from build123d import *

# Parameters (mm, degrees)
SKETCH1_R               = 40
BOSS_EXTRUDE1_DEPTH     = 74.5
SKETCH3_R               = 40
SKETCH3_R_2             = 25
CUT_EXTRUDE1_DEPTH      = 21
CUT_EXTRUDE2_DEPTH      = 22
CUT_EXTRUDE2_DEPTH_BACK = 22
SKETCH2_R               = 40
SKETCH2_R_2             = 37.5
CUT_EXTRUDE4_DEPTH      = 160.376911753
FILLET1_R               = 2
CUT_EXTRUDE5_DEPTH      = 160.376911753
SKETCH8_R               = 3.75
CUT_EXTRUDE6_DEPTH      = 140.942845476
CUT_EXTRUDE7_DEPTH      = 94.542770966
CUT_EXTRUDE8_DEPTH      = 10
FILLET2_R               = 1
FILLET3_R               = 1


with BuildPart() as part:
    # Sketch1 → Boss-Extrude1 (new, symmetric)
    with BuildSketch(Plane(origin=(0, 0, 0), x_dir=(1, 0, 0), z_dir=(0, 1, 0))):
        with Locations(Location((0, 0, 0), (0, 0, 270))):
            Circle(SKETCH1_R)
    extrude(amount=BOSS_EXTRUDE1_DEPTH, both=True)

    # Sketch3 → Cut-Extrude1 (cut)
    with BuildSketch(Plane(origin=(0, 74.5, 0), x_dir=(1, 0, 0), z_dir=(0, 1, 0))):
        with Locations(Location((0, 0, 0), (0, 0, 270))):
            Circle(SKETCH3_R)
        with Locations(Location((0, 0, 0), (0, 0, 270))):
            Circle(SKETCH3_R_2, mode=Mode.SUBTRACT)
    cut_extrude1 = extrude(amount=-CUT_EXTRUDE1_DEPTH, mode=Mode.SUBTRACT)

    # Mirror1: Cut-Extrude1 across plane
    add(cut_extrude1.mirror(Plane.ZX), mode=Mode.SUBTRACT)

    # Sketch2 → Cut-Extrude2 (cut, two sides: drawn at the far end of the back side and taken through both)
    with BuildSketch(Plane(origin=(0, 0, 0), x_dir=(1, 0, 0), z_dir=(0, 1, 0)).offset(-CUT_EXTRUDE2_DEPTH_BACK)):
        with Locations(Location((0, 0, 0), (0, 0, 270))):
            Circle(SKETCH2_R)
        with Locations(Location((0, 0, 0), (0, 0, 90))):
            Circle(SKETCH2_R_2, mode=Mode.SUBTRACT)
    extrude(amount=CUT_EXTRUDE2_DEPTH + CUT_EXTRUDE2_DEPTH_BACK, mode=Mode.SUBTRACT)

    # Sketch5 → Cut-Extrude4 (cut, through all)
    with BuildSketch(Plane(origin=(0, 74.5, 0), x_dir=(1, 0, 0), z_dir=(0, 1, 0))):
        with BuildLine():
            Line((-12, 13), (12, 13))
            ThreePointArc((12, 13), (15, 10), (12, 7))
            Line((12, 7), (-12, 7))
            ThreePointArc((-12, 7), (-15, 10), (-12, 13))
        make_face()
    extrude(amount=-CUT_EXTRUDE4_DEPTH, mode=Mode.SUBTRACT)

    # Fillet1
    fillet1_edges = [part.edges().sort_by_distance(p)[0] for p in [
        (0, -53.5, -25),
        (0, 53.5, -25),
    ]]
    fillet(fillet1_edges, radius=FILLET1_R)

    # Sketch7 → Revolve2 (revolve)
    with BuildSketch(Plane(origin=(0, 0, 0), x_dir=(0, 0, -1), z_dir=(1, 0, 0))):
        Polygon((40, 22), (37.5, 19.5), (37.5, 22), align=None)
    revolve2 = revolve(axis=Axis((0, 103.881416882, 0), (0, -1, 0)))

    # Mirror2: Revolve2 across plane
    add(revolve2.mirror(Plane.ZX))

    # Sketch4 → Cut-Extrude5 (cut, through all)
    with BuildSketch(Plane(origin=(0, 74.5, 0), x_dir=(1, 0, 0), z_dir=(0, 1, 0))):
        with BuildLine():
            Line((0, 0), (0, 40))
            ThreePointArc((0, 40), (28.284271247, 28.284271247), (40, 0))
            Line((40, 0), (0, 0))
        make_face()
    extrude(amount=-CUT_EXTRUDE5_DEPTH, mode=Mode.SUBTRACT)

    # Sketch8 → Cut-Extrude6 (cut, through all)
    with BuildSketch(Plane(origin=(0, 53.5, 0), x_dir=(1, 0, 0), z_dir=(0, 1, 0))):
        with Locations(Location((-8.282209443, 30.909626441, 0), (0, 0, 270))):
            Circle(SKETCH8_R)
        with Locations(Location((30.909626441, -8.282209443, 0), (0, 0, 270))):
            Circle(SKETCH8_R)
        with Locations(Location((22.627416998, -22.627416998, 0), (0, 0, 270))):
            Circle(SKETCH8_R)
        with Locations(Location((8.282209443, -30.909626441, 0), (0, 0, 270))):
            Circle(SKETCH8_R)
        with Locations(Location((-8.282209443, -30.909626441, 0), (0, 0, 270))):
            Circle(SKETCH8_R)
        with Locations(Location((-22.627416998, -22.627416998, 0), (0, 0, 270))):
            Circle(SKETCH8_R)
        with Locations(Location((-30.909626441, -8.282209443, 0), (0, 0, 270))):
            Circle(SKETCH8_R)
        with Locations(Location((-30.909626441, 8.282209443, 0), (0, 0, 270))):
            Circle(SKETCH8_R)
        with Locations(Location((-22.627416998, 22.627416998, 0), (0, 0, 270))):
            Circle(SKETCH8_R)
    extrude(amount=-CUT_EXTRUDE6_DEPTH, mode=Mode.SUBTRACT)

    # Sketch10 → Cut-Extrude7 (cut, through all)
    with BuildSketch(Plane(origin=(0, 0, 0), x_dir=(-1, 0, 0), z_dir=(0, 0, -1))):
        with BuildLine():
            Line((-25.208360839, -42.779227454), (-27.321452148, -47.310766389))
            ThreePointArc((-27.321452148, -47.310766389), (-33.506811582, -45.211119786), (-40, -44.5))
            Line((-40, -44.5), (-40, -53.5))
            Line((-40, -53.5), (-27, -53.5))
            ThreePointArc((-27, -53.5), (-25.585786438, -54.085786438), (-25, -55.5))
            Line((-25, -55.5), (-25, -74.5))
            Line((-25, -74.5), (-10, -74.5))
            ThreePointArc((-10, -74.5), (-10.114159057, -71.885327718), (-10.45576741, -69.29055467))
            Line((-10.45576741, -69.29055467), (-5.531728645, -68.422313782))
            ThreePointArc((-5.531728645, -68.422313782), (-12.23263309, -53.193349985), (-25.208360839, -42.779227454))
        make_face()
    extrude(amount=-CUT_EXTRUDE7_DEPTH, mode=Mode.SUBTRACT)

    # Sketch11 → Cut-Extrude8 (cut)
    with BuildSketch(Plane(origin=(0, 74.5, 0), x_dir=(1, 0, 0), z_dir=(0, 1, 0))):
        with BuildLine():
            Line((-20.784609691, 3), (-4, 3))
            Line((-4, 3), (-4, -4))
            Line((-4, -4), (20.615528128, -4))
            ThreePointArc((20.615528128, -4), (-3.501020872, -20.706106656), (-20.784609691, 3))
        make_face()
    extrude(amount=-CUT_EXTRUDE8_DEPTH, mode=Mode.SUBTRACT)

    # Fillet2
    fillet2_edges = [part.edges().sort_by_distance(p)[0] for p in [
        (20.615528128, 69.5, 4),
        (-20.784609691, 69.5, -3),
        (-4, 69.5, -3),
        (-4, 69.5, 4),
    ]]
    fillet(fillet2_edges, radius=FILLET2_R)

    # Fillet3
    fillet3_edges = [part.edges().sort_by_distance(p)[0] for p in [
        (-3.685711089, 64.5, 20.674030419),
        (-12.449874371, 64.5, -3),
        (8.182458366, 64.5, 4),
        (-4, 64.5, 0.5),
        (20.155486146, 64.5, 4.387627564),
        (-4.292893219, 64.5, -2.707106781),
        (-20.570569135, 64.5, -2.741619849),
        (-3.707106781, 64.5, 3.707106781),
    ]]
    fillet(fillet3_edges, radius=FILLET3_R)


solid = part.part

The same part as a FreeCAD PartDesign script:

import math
import FreeCAD as App
import Part
import Sketcher
Q = App.Units.Quantity


def edges_at(feature, points):
    """Names of the edges that pass closest to the given points."""
    edges = feature.Shape.Edges
    near = lambda p: min(range(len(edges)), key=lambda i: edges[i].distToShape(Part.Vertex(*p))[0])
    return sorted({f"Edge{near(p) + 1}" for p in points})


def add_polygon(sketch, points):
    """Adds a closed chain of lines whose ends are joined by coincident constraints."""
    first, n = sketch.GeometryCount, len(points)
    for a, b in zip(points, points[1:] + points[:1]):
        sketch.addGeometry(Part.LineSegment(App.Vector(*a, 0), App.Vector(*b, 0)), False)
    for i in range(n):
        sketch.addConstraint(Sketcher.Constraint("Coincident", first + i, 2, first + (i + 1) % n, 1))

doc = App.newDocument("Part")
body = doc.addObject("PartDesign::Body", "Body")

# Sketch on XZ plane
sketch1 = body.newObject("Sketcher::SketchObject", "Sketch")
sketch1.AttachmentSupport = (doc.getObject("XZ_Plane"), [""])
sketch1.MapMode = "FlatFace"
sketch1.addGeometry(Part.Circle(App.Vector(0, 0, 0), App.Vector(0, 0, 1), 40), False)
sketch1.addConstraint([
    Sketcher.Constraint("Coincident", 0, 3, -1, 1),
    Sketcher.Constraint("Diameter", 0, Q("80 mm")),
])
pad1 = body.newObject("PartDesign::Pad", "Pad")
pad1.Profile = sketch1
pad1.Length = 149
pad1.Midplane = True

# Sketch on XZ plane
sketch2 = body.newObject("Sketcher::SketchObject", "Sketch001")
sketch2.AttachmentSupport = (doc.getObject("XZ_Plane"), [""])
sketch2.MapMode = "FlatFace"
sketch2.AttachmentOffset = App.Placement(App.Vector(0, 0, -74.5), App.Rotation())
sketch2.addGeometry([
    Part.Circle(App.Vector(0, 0, 0), App.Vector(0, 0, 1), 40),
    Part.Circle(App.Vector(0, 0, 0), App.Vector(0, 0, 1), 25),
], False)
sketch2.addConstraint([
    Sketcher.Constraint("Coincident", 0, 3, -1, 1),
    Sketcher.Constraint("Coincident", 1, 3, -1, 1),
    Sketcher.Constraint("Diameter", 0, Q("80 mm")),
    Sketcher.Constraint("Diameter", 1, Q("50 mm")),
])
pocket1 = body.newObject("PartDesign::Pocket", "Pocket")
pocket1.Profile = sketch2
pocket1.Length = 21
pocket1.Reversed = True
doc.recompute()

mirrored = body.newObject("PartDesign::Mirrored", "Mirrored")
mirrored.Originals = [pocket1]
mirrored.MirrorPlane = (doc.getObject("XZ_Plane"), [""])
body.Tip = mirrored

# Sketch on XZ plane
sketch3 = body.newObject("Sketcher::SketchObject", "Sketch002")
sketch3.AttachmentSupport = (doc.getObject("XZ_Plane"), [""])
sketch3.MapMode = "FlatFace"
sketch3.addGeometry([
    Part.Circle(App.Vector(0, 0, 0), App.Vector(0, 0, 1), 40),
    Part.Circle(App.Vector(0, 0, 0), App.Vector(0, 0, 1), 38),
], False)
sketch3.addConstraint([
    Sketcher.Constraint("Coincident", 0, 3, -1, 1),
    Sketcher.Constraint("Coincident", 1, 3, -1, 1),
    Sketcher.Constraint("Diameter", 0, Q("80 mm")),
    Sketcher.Constraint("Diameter", 1, Q("75 mm")),
])
pocket2 = body.newObject("PartDesign::Pocket", "Pocket001")
pocket2.Profile = sketch3
pocket2.Type = "TwoLengths"
pocket2.Length = 22
pocket2.Length2 = 22

# Sketch on XZ plane
sketch4 = body.newObject("Sketcher::SketchObject", "Sketch003")
sketch4.AttachmentSupport = (doc.getObject("XZ_Plane"), [""])
sketch4.MapMode = "FlatFace"
sketch4.AttachmentOffset = App.Placement(App.Vector(0, 0, -74.5), App.Rotation())
sketch4.addGeometry([
    Part.LineSegment(App.Vector(12, -13, 0), App.Vector(-12, -13, 0)),
    Part.ArcOfCircle(Part.Circle(App.Vector(-12, -10, 0), App.Vector(0, 0, 1), 3), math.radians(90), math.radians(270)),
    Part.LineSegment(App.Vector(-12, -7, 0), App.Vector(12, -7, 0)),
    Part.ArcOfCircle(Part.Circle(App.Vector(12, -10, 0), App.Vector(0, 0, 1), 3), math.radians(-90), math.radians(90)),
], False)
sketch4.addConstraint([
    Sketcher.Constraint("Tangent", 0, 2, 1, 2),
    Sketcher.Constraint("Tangent", 1, 1, 2, 1),
    Sketcher.Constraint("Tangent", 2, 2, 3, 2),
    Sketcher.Constraint("Tangent", 3, 1, 0, 1),
    Sketcher.Constraint("Horizontal", 0),
    Sketcher.Constraint("Horizontal", 2),
    Sketcher.Constraint("Radius", 1, Q("3 mm")),
    Sketcher.Constraint("DistanceX", 0, 2, 0, 1, Q("24 mm")),
    Sketcher.Constraint("DistanceX", 1, 3, -1, 1, Q("12 mm")),
    Sketcher.Constraint("DistanceY", 1, 3, -1, 1, Q("10 mm")),
])
pocket3 = body.newObject("PartDesign::Pocket", "Pocket002")
pocket3.Profile = sketch4
pocket3.Type = "ThroughAll"
pocket3.Reversed = True
doc.recompute()

fillet = body.newObject("PartDesign::Fillet", "Fillet")
fillet.Base = (pocket3, edges_at(pocket3, [(0, -53.5, -25), (0, 53.5, -25)]))
fillet.Radius = 2

# Sketch on YZ plane
sketch5 = body.newObject("Sketcher::SketchObject", "Sketch004")
sketch5.AttachmentSupport = (doc.getObject("YZ_Plane"), [""])
sketch5.MapMode = "FlatFace"
add_polygon(sketch5, [(19.5, -37.5), (22, -40), (22, -37.5)])  # lines 0-2
sketch5.addConstraint([
    Sketcher.Constraint("Vertical", 1),
    Sketcher.Constraint("Horizontal", 2),
    Sketcher.Constraint("Equal", 2, 1),
    Sketcher.Constraint("DistanceX", 2, 2, 2, 1, Q("2.5 mm")),
    Sketcher.Constraint("DistanceX", -1, 1, 0, 2, Q("22 mm")),
    Sketcher.Constraint("DistanceY", 0, 2, -1, 1, Q("40 mm")),
])
revolution = body.newObject("PartDesign::Revolution", "Revolution")
revolution.Profile = sketch5
revolution.ReferenceAxis = (sketch5, ["H_Axis"])
revolution.Angle = 360
doc.recompute()

mirrored2 = body.newObject("PartDesign::Mirrored", "Mirrored001")
mirrored2.Originals = [revolution]
mirrored2.MirrorPlane = (doc.getObject("XZ_Plane"), [""])
body.Tip = mirrored2

# Sketch on XZ plane
sketch6 = body.newObject("Sketcher::SketchObject", "Sketch005")
sketch6.AttachmentSupport = (doc.getObject("XZ_Plane"), [""])
sketch6.MapMode = "FlatFace"
sketch6.AttachmentOffset = App.Placement(App.Vector(0, 0, -74.5), App.Rotation())
sketch6.addGeometry([
    Part.LineSegment(App.Vector(0, -40, 0), App.Vector(0, 0, 0)),
    Part.LineSegment(App.Vector(0, 0, 0), App.Vector(40, 0, 0)),
    Part.ArcOfCircle(Part.Circle(App.Vector(0, 0, 0), App.Vector(0, 0, 1), 40), math.radians(-90), math.radians(0)),
], False)
sketch6.addConstraint([
    Sketcher.Constraint("Coincident", 0, 2, 1, 1),
    Sketcher.Constraint("Coincident", 1, 2, 2, 2),
    Sketcher.Constraint("Coincident", 2, 1, 0, 1),
    Sketcher.Constraint("Vertical", 0),
    Sketcher.Constraint("Horizontal", 1),
    Sketcher.Constraint("Coincident", 2, 3, -1, 1),
    Sketcher.Constraint("Coincident", 0, 2, -1, 1),
    Sketcher.Constraint("Radius", 2, Q("40 mm")),
])
pocket4 = body.newObject("PartDesign::Pocket", "Pocket003")
pocket4.Profile = sketch6
pocket4.Type = "ThroughAll"
pocket4.Reversed = True

# Sketch on XZ plane
sketch7 = body.newObject("Sketcher::SketchObject", "Sketch006")
sketch7.AttachmentSupport = (doc.getObject("XZ_Plane"), [""])
sketch7.MapMode = "FlatFace"
sketch7.AttachmentOffset = App.Placement(App.Vector(0, 0, -53.5), App.Rotation())
sketch7.addGeometry([
    Part.Circle(App.Vector(-8.3, -30.9, 0), App.Vector(0, 0, 1), 3.8),  # 0
    Part.Circle(App.Vector(30.9, 8.3, 0), App.Vector(0, 0, 1), 3.8),  # 1
    Part.Circle(App.Vector(22.6, 22.6, 0), App.Vector(0, 0, 1), 3.8),  # 2
    Part.Circle(App.Vector(8.3, 30.9, 0), App.Vector(0, 0, 1), 3.8),  # 3
    Part.Circle(App.Vector(-8.3, 30.9, 0), App.Vector(0, 0, 1), 3.8),  # 4
    Part.Circle(App.Vector(-22.6, 22.6, 0), App.Vector(0, 0, 1), 3.8),  # 5
    Part.Circle(App.Vector(-30.9, 8.3, 0), App.Vector(0, 0, 1), 3.8),  # 6
    Part.Circle(App.Vector(-30.9, -8.3, 0), App.Vector(0, 0, 1), 3.8),  # 7
    Part.Circle(App.Vector(-22.6, -22.6, 0), App.Vector(0, 0, 1), 3.8),  # 8
], False)
sketch7.addConstraint([
    Sketcher.Constraint("Equal", 0, 1),
    Sketcher.Constraint("Equal", 1, 2),
    Sketcher.Constraint("Equal", 2, 3),
    Sketcher.Constraint("Equal", 3, 4),
    Sketcher.Constraint("Equal", 4, 5),
    Sketcher.Constraint("Equal", 5, 6),
    Sketcher.Constraint("Equal", 6, 7),
    Sketcher.Constraint("Equal", 7, 8),
    Sketcher.Constraint("Symmetric", 0, 3, 3, 3, -1, 1),
    Sketcher.Constraint("Symmetric", 1, 3, 7, 3, -1, 1),
    Sketcher.Constraint("Symmetric", 2, 3, 8, 3, -1, 1),
    Sketcher.Constraint("Symmetric", 3, 3, 4, 3, -2),
    Sketcher.Constraint("Symmetric", 2, 3, 5, 3, -2),
    Sketcher.Constraint("Symmetric", 1, 3, 6, 3, -2),
    Sketcher.Constraint("Diameter", 0, Q("7.5 mm")),
    Sketcher.Constraint("DistanceX", 0, 3, -1, 1, Q("8.282209 mm")),
    Sketcher.Constraint("DistanceY", -1, 1, 1, 3, Q("8.282209 mm")),
    Sketcher.Constraint("DistanceX", 2, 3, 1, 3, Q("8.282209 mm")),
    Sketcher.Constraint("DistanceY", 2, 3, 3, 3, Q("8.282209 mm")),
    Sketcher.Constraint("DistanceY", 0, 3, -1, 1, Q("30.909626 mm")),
    Sketcher.Constraint("DistanceX", -1, 1, 1, 3, Q("30.909626 mm")),
])
pocket5 = body.newObject("PartDesign::Pocket", "Pocket004")
pocket5.Profile = sketch7
pocket5.Type = "ThroughAll"
pocket5.Reversed = True

# Sketch on XY plane
sketch8 = body.newObject("Sketcher::SketchObject", "Sketch007")
sketch8.AttachmentSupport = (doc.getObject("XY_Plane"), [""])
sketch8.MapMode = "FlatFace"
sketch8.addGeometry([
    Part.LineSegment(App.Vector(25.2, -42.8, 0), App.Vector(27.3, -47.3, 0)),  # 0
    Part.ArcOfCircle(Part.Circle(App.Vector(40, -74.5, 0), App.Vector(0, 0, 1), 30), math.radians(90), math.radians(115)),  # 1
    Part.LineSegment(App.Vector(40, -44.5, 0), App.Vector(40, -53.5, 0)),  # 2
    Part.LineSegment(App.Vector(40, -53.5, 0), App.Vector(27, -53.5, 0)),  # 3
    Part.ArcOfCircle(Part.Circle(App.Vector(27, -55.5, 0), App.Vector(0, 0, 1), 2), math.radians(90), math.radians(180)),  # 4
    Part.LineSegment(App.Vector(25, -55.5, 0), App.Vector(25, -74.5, 0)),  # 5
    Part.LineSegment(App.Vector(25, -74.5, 0), App.Vector(10, -74.5, 0)),  # 6
    Part.ArcOfCircle(Part.Circle(App.Vector(40, -74.5, 0), App.Vector(0, 0, 1), 30), math.radians(170), math.radians(180)),  # 7
    Part.LineSegment(App.Vector(10.5, -69.3, 0), App.Vector(5.5, -68.4, 0)),  # 8
    Part.ArcOfCircle(Part.Circle(App.Vector(40, -74.5, 0), App.Vector(0, 0, 1), 35), math.radians(115), math.radians(170)),  # 9
], False)
sketch8.addConstraint([
    Sketcher.Constraint("Coincident", 0, 2, 1, 2),
    Sketcher.Constraint("Coincident", 1, 1, 2, 1),
    Sketcher.Constraint("Coincident", 2, 2, 3, 1),
    Sketcher.Constraint("Tangent", 3, 2, 4, 1),
    Sketcher.Constraint("Tangent", 4, 2, 5, 1),
    Sketcher.Constraint("Coincident", 5, 2, 6, 1),
    Sketcher.Constraint("Coincident", 6, 2, 7, 2),
    Sketcher.Constraint("Coincident", 7, 1, 8, 1),
    Sketcher.Constraint("Coincident", 8, 2, 9, 2),
    Sketcher.Constraint("Coincident", 9, 1, 0, 1),
    Sketcher.Constraint("Vertical", 2),
    Sketcher.Constraint("Horizontal", 3),
    Sketcher.Constraint("Vertical", 5),
    Sketcher.Constraint("Horizontal", 6),
    Sketcher.Constraint("Coincident", 7, 3, 1, 3),
    Sketcher.Constraint("Coincident", 9, 3, 1, 3),
    Sketcher.Constraint("Equal", 1, 7),
    Sketcher.Constraint("Horizontal", 9, 3, 5, 2),
    Sketcher.Constraint("Vertical", 9, 3, 1, 1),
    Sketcher.Constraint("Radius", 1, Q("30 mm")),
    Sketcher.Constraint("Radius", 4, Q("2 mm")),
    Sketcher.Constraint("Radius", 9, Q("35 mm")),
    Sketcher.Constraint("DistanceX", 3, 2, 3, 1, Q("13 mm")),
    Sketcher.Constraint("DistanceY", 2, 2, 2, 1, Q("9 mm")),
    Sketcher.Constraint("Angle", 0, Q("-65 deg")),
    Sketcher.Constraint("Angle", 8, Q("170 deg")),
    Sketcher.Constraint("DistanceX", -1, 1, 1, 3, Q("40 mm")),
    Sketcher.Constraint("DistanceY", 1, 3, -1, 1, Q("74.5 mm")),
    Sketcher.Constraint("DistanceX", -1, 1, 8, 2, Q("5.531729 mm")),
    Sketcher.Constraint("DistanceX", -1, 1, 9, 1, Q("25.208361 mm")),
])
pocket6 = body.newObject("PartDesign::Pocket", "Pocket005")
pocket6.Profile = sketch8
pocket6.Type = "ThroughAll"
pocket6.Reversed = True

# Sketch on XZ plane
sketch9 = body.newObject("Sketcher::SketchObject", "Sketch008")
sketch9.AttachmentSupport = (doc.getObject("XZ_Plane"), [""])
sketch9.MapMode = "FlatFace"
sketch9.AttachmentOffset = App.Placement(App.Vector(0, 0, -74.5), App.Rotation())
sketch9.addGeometry([
    Part.LineSegment(App.Vector(-4, -3, 0), App.Vector(-21, -3, 0)),
    Part.ArcOfCircle(Part.Circle(App.Vector(0, 0, 0), App.Vector(0, 0, 1), 21), math.radians(11), math.radians(188)),
    Part.LineSegment(App.Vector(21, 4, 0), App.Vector(-4, 4, 0)),
    Part.LineSegment(App.Vector(-4, 4, 0), App.Vector(-4, -3, 0)),
], False)
sketch9.addConstraint([
    Sketcher.Constraint("Coincident", 0, 2, 1, 2),
    Sketcher.Constraint("Coincident", 1, 1, 2, 1),
    Sketcher.Constraint("Coincident", 2, 2, 3, 1),
    Sketcher.Constraint("Coincident", 3, 2, 0, 1),
    Sketcher.Constraint("Horizontal", 0),
    Sketcher.Constraint("Horizontal", 2),
    Sketcher.Constraint("Vertical", 3),
    Sketcher.Constraint("Coincident", 1, 3, -1, 1),
    Sketcher.Constraint("Radius", 1, Q("21 mm")),
    Sketcher.Constraint("DistanceY", 3, 2, 3, 1, Q("7 mm")),
    Sketcher.Constraint("DistanceY", 0, 2, -1, 1, Q("3 mm")),
    Sketcher.Constraint("DistanceX", 2, 2, -1, 1, Q("4 mm")),
])
pocket7 = body.newObject("PartDesign::Pocket", "Pocket006")
pocket7.Profile = sketch9
pocket7.Length = 10
pocket7.Reversed = True
doc.recompute()

fillet2 = body.newObject("PartDesign::Fillet", "Fillet001")
fillet2.Base = (pocket7, edges_at(pocket7, [
    (20.616, 69.5, 4),
    (-20.785, 69.5, -3),
    (-4, 69.5, -3),
    (-4, 69.5, 4),
]))
fillet2.Radius = 1
doc.recompute()

fillet3 = body.newObject("PartDesign::Fillet", "Fillet002")
fillet3.Base = (fillet2, edges_at(fillet2, [
    (-3.686, 64.5, 20.674),
    (-12.45, 64.5, -3),
    (8.182, 64.5, 4),
    (-4, 64.5, 0.5),
    (20.155, 64.5, 4.388),
    (-4.293, 64.5, -2.707),
    (-20.571, 64.5, -2.742),
    (-3.707, 64.5, 3.707),
]))
fillet3.Radius = 1

doc.recompute()
